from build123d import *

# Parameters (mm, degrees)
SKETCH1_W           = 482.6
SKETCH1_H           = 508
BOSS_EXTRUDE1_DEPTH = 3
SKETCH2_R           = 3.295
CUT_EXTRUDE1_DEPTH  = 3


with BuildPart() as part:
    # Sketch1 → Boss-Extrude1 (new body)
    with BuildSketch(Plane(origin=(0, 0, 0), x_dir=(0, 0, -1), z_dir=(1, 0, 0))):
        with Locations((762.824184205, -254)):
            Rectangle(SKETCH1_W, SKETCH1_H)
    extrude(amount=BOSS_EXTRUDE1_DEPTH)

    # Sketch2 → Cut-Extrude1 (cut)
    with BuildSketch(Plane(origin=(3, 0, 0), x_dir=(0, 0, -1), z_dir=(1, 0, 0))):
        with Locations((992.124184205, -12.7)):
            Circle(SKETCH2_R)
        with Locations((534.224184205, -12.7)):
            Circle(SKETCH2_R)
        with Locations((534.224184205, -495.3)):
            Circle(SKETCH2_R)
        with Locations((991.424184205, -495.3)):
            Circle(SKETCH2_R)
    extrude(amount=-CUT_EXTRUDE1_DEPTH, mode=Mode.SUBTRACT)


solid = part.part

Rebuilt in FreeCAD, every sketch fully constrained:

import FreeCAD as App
import Part
import Sketcher
from FreeCAD import Vector
Q = App.Units.Quantity

doc = App.newDocument("Part")
body = doc.addObject("PartDesign::Body", "Body")

sketch1 = doc.addObject("Sketcher::SketchObject", "Sketch")
body.addObject(sketch1)
sketch1.AttachmentSupport = (doc.YZ_Plane, [""])
sketch1.MapMode = "FlatFace"
sketch1.addGeometry(Part.LineSegment(Vector(0, -522, 0), Vector(-508, -522, 0)), False)
sketch1.addGeometry(Part.LineSegment(Vector(-508, -522, 0), Vector(-508, -1004, 0)), False)
sketch1.addGeometry(Part.LineSegment(Vector(-508, -1004, 0), Vector(0, -1004, 0)), False)
sketch1.addGeometry(Part.LineSegment(Vector(0, -1004, 0), Vector(0, -522, 0)), False)
sketch1.addConstraint(Sketcher.Constraint("Coincident", 0, 2, 1, 1))
sketch1.addConstraint(Sketcher.Constraint("Coincident", 1, 2, 2, 1))
sketch1.addConstraint(Sketcher.Constraint("Coincident", 2, 2, 3, 1))
sketch1.addConstraint(Sketcher.Constraint("Coincident", 3, 2, 0, 1))
sketch1.addConstraint(Sketcher.Constraint("Horizontal", 0))
sketch1.addConstraint(Sketcher.Constraint("Vertical", 1))
sketch1.addConstraint(Sketcher.Constraint("Horizontal", 2))
sketch1.addConstraint(Sketcher.Constraint("Vertical", 3))
sketch1.addConstraint(Sketcher.Constraint("PointOnObject", 2, 2, -2))
sketch1.addConstraint(Sketcher.Constraint("DistanceX", 0, 2, 0, 1, Q("20 in")))
sketch1.addConstraint(Sketcher.Constraint("DistanceY", 1, 2, 1, 1, Q("19 in")))
sketch1.addConstraint(Sketcher.Constraint("DistanceY", 0, 2, -1, 1, 521.524184))
pad1 = doc.addObject("PartDesign::Pad", "Pad")
body.addObject(pad1)
pad1.Profile = sketch1
pad1.Length = 3

sketch2 = doc.addObject("Sketcher::SketchObject", "Sketch001")
body.addObject(sketch2)
sketch2.AttachmentSupport = (doc.YZ_Plane, [""])
sketch2.MapMode = "FlatFace"
sketch2.AttachmentOffset = App.Placement(Vector(0, 0, 3), App.Rotation())
sketch2.addGeometry(Part.Circle(Vector(-12.7, -992.1, 0), Vector(0, 0, 1), 3.3), False)
sketch2.addGeometry(Part.Circle(Vector(-12.7, -534.2, 0), Vector(0, 0, 1), 3.3), False)
sketch2.addGeometry(Part.Circle(Vector(-495.3, -534.2, 0), Vector(0, 0, 1), 3.3), False)
sketch2.addGeometry(Part.Circle(Vector(-495.3, -991.4, 0), Vector(0, 0, 1), 3.3), False)
sketch2.addConstraint(Sketcher.Constraint("Equal", 0, 1))
sketch2.addConstraint(Sketcher.Constraint("Equal", 1, 2))
sketch2.addConstraint(Sketcher.Constraint("Equal", 2, 3))
sketch2.addConstraint(Sketcher.Constraint("Horizontal", 1, 3, 2, 3))
sketch2.addConstraint(Sketcher.Constraint("Vertical", 0, 3, 1, 3))
sketch2.addConstraint(Sketcher.Constraint("Vertical", 2, 3, 3, 3))
sketch2.addConstraint(Sketcher.Constraint("DistanceX", 2, 3, 1, 3, Q("19 in")))
sketch2.addConstraint(Sketcher.Constraint("DistanceY", 3, 3, 2, 3, Q("18 in")))
sketch2.addConstraint(Sketcher.Constraint("DistanceX", 0, 3, -1, 1, Q("0.5 in")))
sketch2.addConstraint(Sketcher.Constraint("Diameter", 0, 6.59))
sketch2.addConstraint(Sketcher.Constraint("DistanceY", 0, 3, 1, 3, 457.9))
sketch2.addConstraint(Sketcher.Constraint("DistanceY", 0, 3, -1, 1, 992.124184))
pocket1 = doc.addObject("PartDesign::Pocket", "Pocket")
body.addObject(pocket1)
pocket1.Profile = sketch2
pocket1.Length = 3

doc.recompute()
